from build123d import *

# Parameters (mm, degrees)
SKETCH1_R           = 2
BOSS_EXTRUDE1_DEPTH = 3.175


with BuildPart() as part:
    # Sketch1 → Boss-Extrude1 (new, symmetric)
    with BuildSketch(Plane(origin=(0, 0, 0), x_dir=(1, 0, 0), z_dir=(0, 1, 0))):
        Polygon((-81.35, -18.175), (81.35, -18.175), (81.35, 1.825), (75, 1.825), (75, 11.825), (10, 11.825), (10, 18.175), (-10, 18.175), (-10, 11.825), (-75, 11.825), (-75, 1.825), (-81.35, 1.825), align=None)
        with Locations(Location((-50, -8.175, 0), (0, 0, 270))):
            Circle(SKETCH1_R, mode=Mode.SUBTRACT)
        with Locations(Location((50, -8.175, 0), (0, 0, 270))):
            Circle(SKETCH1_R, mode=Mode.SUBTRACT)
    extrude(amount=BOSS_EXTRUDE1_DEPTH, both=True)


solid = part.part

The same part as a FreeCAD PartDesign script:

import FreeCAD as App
import Part
import Sketcher


def add_polygon(sketch, points):
    """Adds a closed chain of lines whose ends are joined by coincident constraints."""
    first, n = sketch.GeometryCount, len(points)
    for a, b in zip(points, points[1:] + points[:1]):
        sketch.addGeometry(Part.LineSegment(App.Vector(*a, 0), App.Vector(*b, 0)), False)
    for i in range(n):
        sketch.addConstraint(Sketcher.Constraint("Coincident", first + i, 2, first + (i + 1) % n, 1))

doc = App.newDocument("Part")
params = doc.addObject("Spreadsheet::Sheet", "Params")
for row, (alias, value) in enumerate([
    ("sketch1_diameter", "4 mm"),
    ("sketch1_width", "65 mm"),
    ("sketch1_width2", "20 mm"),
    ("sketch1_height", "10 mm"),
    ("sketch1_width3", "162.7 mm"),
    ("pad1_length", "6.35 mm"),
], start=1):
    params.set(f"A{row}", alias)
    params.set(f"B{row}", "=" + value)
    params.setAlias(f"B{row}", alias)

body = doc.addObject("PartDesign::Body", "Body")

sketch1 = body.newObject("Sketcher::SketchObject", "Sketch")
sketch1.AttachmentSupport = (doc.getObject("XZ_Plane"), [""])
sketch1.MapMode = "FlatFace"
add_polygon(sketch1, [(-81.3, 18.2), (81.3, 18.2), (81.3, -1.8), (75, -1.8), (75, -11.8), (10, -11.8), (10, -18.2), (-10, -18.2), (-10, -11.8), (-75, -11.8), (-75, -1.8), (-81.3, -1.8)])
sketch1.addGeometry(Part.Circle(App.Vector(-50, 8.2, 0), App.Vector(0, 0, 1), 2), False)
sketch1.addGeometry(Part.Circle(App.Vector(50, 8.2, 0), App.Vector(0, 0, 1), 2), False)
sketch1.addConstraint([
    Sketcher.Constraint("Horizontal", 0),
    Sketcher.Constraint("Vertical", 1),
    Sketcher.Constraint("Horizontal", 2),
    Sketcher.Constraint("Vertical", 3),
    Sketcher.Constraint("Horizontal", 4),
    Sketcher.Constraint("Vertical", 5),
    Sketcher.Constraint("Horizontal", 6),
    Sketcher.Constraint("Vertical", 7),
    Sketcher.Constraint("Horizontal", 8),
    Sketcher.Constraint("Vertical", 9),
    Sketcher.Constraint("Horizontal", 10),
    Sketcher.Constraint("Vertical", 11),
    Sketcher.Constraint("Equal", 12, 13),
    Sketcher.Constraint("Symmetric", 12, 3, 13, 3, -2),
    Sketcher.Constraint("Symmetric", 4, 2, 7, 2, -2),
    Sketcher.Constraint("Symmetric", 2, 2, 9, 2, -2),
    Sketcher.Constraint("Equal", 2, 10),
    Sketcher.Constraint("Equal", 6, 1),
    Sketcher.Constraint("Equal", 10, 5),
    Sketcher.Constraint("Diameter", 12, 4.0),
    Sketcher.Constraint("DistanceX", 4, 2, 4, 1, 65.0),
    Sketcher.Constraint("DistanceX", 6, 2, 6, 1, 20.0),
    Sketcher.Constraint("DistanceY", 3, 2, 3, 1, 10.0),
    Sketcher.Constraint("DistanceX", 0, 1, 0, 2, 162.7),
    Sketcher.Constraint("DistanceX", 12, 3, -1, 1, 50.0),
    Sketcher.Constraint("DistanceY", 13, 3, 0, 2, 10.0),
    Sketcher.Constraint("DistanceY", -1, 1, 12, 3, 8.175),
])
sketch1.setExpression("Constraints[31]", "Params.sketch1_diameter")
sketch1.setExpression("Constraints[32]", "Params.sketch1_width")
sketch1.setExpression("Constraints[33]", "Params.sketch1_width2")
sketch1.setExpression("Constraints[34]", "Params.sketch1_height")
sketch1.setExpression("Constraints[35]", "Params.sketch1_width3")
pad1 = body.newObject("PartDesign::Pad", "Pad")
pad1.Profile = sketch1
pad1.setExpression("Length", "Params.pad1_length")
pad1.Midplane = True

doc.recompute()
